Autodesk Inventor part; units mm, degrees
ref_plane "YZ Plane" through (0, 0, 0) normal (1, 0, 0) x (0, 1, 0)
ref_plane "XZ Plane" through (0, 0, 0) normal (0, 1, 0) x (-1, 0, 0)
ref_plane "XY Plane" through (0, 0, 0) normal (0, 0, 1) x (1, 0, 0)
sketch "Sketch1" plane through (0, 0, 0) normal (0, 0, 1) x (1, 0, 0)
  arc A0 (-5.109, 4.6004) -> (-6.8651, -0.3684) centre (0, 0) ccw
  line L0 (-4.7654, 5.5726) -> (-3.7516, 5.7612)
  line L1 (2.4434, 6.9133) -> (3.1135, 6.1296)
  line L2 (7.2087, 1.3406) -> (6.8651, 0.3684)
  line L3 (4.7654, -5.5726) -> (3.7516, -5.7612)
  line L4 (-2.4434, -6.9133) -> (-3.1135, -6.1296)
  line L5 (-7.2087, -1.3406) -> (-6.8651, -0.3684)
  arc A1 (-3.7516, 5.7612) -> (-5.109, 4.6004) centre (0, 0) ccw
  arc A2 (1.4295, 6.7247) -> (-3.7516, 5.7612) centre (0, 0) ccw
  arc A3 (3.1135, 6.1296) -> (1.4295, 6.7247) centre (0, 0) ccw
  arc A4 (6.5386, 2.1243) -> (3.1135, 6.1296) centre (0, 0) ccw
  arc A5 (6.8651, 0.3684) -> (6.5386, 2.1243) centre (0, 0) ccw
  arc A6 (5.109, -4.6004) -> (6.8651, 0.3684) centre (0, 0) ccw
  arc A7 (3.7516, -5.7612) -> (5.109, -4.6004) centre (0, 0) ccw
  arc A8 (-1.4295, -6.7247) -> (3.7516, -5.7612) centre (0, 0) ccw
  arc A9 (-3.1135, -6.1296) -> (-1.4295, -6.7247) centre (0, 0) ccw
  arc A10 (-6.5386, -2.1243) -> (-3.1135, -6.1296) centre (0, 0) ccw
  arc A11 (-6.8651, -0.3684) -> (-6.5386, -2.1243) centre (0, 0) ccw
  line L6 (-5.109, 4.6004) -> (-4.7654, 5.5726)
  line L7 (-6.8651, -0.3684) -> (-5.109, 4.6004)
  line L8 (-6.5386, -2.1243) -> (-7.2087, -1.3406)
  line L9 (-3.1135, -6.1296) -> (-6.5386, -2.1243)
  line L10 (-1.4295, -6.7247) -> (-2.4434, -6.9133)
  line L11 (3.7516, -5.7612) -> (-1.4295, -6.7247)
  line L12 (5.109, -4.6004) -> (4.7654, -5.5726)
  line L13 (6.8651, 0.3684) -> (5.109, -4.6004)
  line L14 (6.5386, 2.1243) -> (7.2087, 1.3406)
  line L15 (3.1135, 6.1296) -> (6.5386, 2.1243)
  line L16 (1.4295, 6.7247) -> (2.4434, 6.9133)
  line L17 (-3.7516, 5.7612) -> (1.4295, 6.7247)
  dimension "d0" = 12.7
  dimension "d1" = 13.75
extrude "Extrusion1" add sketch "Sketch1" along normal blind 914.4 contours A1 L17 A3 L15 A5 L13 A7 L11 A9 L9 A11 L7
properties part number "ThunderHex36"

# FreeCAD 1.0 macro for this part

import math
import FreeCAD as App
import Part
import Sketcher
Q = App.Units.Quantity

doc = App.newDocument("Part")
body = doc.addObject("PartDesign::Body", "Body")

# Sketch on XY plane
sketch1 = body.newObject("Sketcher::SketchObject", "Sketch")
sketch1.AttachmentSupport = (doc.getObject("XY_Plane"), [""])
sketch1.MapMode = "FlatFace"
sketch1.addGeometry([
    Part.ArcOfCircle(Part.Circle(App.Vector(-0.000945, 0.001263, 0), App.Vector(0, 0, 1), 6.873448), math.radians(123.070667), math.radians(138.001093)),  # 0
    Part.LineSegment(App.Vector(-5.109, 4.6004, 0), App.Vector(-6.8651, -0.3684, 0)),  # 1
    Part.ArcOfCircle(Part.Circle(App.Vector(0.002666, 0.000318, 0), App.Vector(0, 0, 1), 6.877657), math.radians(-176.926843), math.radians(-162.006085)),  # 2
    Part.LineSegment(App.Vector(-6.5386, -2.1243, 0), App.Vector(-3.1135, -6.1296, 0)),  # 3
    Part.ArcOfCircle(Part.Circle(App.Vector(-0.001385, -0.003233, 0), App.Vector(0, 0, 1), 6.871509), math.radians(-116.929976), math.radians(-101.995292)),  # 4
    Part.LineSegment(App.Vector(-1.4295, -6.7247, 0), App.Vector(3.7516, -5.7612, 0)),  # 5
    Part.ArcOfCircle(Part.Circle(App.Vector(0.000945, -0.001263, 0), App.Vector(0, 0, 1), 6.873448), math.radians(-56.929333), math.radians(-41.998907)),  # 6
    Part.LineSegment(App.Vector(5.109, -4.6004, 0), App.Vector(6.8651, 0.3684, 0)),  # 7
    Part.ArcOfCircle(Part.Circle(App.Vector(-0.002666, -0.000318, 0), App.Vector(0, 0, 1), 6.877657), math.radians(3.073157), math.radians(17.993915)),  # 8
    Part.LineSegment(App.Vector(6.5386, 2.1243, 0), App.Vector(3.1135, 6.1296, 0)),  # 9
    Part.ArcOfCircle(Part.Circle(App.Vector(0.001385, 0.003233, 0), App.Vector(0, 0, 1), 6.871509), math.radians(63.070024), math.radians(78.004708)),  # 10
    Part.LineSegment(App.Vector(1.4295, 6.7247, 0), App.Vector(-3.7516, 5.7612, 0)),  # 11
], False)
sketch1.addConstraint([
    Sketcher.Constraint("Coincident", 0, 2, 1, 1),
    Sketcher.Constraint("Coincident", 1, 2, 2, 1),
    Sketcher.Constraint("Coincident", 2, 2, 3, 1),
    Sketcher.Constraint("Coincident", 3, 2, 4, 1),
    Sketcher.Constraint("Coincident", 4, 2, 5, 1),
    Sketcher.Constraint("Coincident", 5, 2, 6, 1),
    Sketcher.Constraint("Coincident", 6, 2, 7, 1),
    Sketcher.Constraint("Coincident", 7, 2, 8, 1),
    Sketcher.Constraint("Coincident", 8, 2, 9, 1),
    Sketcher.Constraint("Coincident", 9, 2, 10, 1),
    Sketcher.Constraint("Coincident", 10, 2, 11, 1),
    Sketcher.Constraint("Coincident", 11, 2, 0, 1),
    Sketcher.Constraint("Equal", 0, 6),
    Sketcher.Constraint("Equal", 2, 8),
    Sketcher.Constraint("Equal", 4, 10),
    Sketcher.Constraint("Symmetric", 0, 3, 6, 3, -1, 1),
    Sketcher.Constraint("Symmetric", 2, 3, 8, 3, -1, 1),
    Sketcher.Constraint("Symmetric", 4, 3, 10, 3, -1, 1),
    Sketcher.Constraint("Parallel", 1, 7),
    Sketcher.Constraint("Parallel", 3, 9),
    Sketcher.Constraint("Parallel", 5, 11),
    Sketcher.Constraint("Equal", 1, 3),
    Sketcher.Constraint("Equal", 3, 5),
    Sketcher.Constraint("Equal", 5, 7),
    Sketcher.Constraint("Equal", 7, 9),
    Sketcher.Constraint("Equal", 9, 11),
    Sketcher.Constraint("Radius", 0, Q("0.2706 in")),
    Sketcher.Constraint("Radius", 2, Q("6.8777 mm")),
    Sketcher.Constraint("Radius", 4, Q("6.8715 mm")),
    Sketcher.Constraint("DistanceY", 10, 3, 0, 2, Q("0.181 in")),
    Sketcher.Constraint("DistanceX", -1, 1, 2, 3, Q("0.0001 in")),
    Sketcher.Constraint("DistanceY", 1, 2, -1, 1, Q("0.0145 in")),
    Sketcher.Constraint("DistanceX", -1, 1, 5, 2, Q("0.1477 in")),
    Sketcher.Constraint("DistanceX", 4, 3, 6, 3, Q("0.0001 in")),
    Sketcher.Constraint("DistanceY", 6, 3, 0, 3, Q("0.0001 in")),
    Sketcher.Constraint("DistanceX", 4, 3, 10, 3, Q("0.0001 in")),
    Sketcher.Constraint("DistanceX", 0, 2, 0, 3, Q("0.2011 in")),
    Sketcher.Constraint("DistanceY", 1, 2, 8, 3, Q("0.0145 in")),
    Sketcher.Constraint("DistanceY", 2, 2, 4, 3, Q("0.0835 in")),
])
pad1 = body.newObject("PartDesign::Pad", "Pad")
pad1.Profile = sketch1
pad1.Length = Q("36 in")

doc.recompute()
